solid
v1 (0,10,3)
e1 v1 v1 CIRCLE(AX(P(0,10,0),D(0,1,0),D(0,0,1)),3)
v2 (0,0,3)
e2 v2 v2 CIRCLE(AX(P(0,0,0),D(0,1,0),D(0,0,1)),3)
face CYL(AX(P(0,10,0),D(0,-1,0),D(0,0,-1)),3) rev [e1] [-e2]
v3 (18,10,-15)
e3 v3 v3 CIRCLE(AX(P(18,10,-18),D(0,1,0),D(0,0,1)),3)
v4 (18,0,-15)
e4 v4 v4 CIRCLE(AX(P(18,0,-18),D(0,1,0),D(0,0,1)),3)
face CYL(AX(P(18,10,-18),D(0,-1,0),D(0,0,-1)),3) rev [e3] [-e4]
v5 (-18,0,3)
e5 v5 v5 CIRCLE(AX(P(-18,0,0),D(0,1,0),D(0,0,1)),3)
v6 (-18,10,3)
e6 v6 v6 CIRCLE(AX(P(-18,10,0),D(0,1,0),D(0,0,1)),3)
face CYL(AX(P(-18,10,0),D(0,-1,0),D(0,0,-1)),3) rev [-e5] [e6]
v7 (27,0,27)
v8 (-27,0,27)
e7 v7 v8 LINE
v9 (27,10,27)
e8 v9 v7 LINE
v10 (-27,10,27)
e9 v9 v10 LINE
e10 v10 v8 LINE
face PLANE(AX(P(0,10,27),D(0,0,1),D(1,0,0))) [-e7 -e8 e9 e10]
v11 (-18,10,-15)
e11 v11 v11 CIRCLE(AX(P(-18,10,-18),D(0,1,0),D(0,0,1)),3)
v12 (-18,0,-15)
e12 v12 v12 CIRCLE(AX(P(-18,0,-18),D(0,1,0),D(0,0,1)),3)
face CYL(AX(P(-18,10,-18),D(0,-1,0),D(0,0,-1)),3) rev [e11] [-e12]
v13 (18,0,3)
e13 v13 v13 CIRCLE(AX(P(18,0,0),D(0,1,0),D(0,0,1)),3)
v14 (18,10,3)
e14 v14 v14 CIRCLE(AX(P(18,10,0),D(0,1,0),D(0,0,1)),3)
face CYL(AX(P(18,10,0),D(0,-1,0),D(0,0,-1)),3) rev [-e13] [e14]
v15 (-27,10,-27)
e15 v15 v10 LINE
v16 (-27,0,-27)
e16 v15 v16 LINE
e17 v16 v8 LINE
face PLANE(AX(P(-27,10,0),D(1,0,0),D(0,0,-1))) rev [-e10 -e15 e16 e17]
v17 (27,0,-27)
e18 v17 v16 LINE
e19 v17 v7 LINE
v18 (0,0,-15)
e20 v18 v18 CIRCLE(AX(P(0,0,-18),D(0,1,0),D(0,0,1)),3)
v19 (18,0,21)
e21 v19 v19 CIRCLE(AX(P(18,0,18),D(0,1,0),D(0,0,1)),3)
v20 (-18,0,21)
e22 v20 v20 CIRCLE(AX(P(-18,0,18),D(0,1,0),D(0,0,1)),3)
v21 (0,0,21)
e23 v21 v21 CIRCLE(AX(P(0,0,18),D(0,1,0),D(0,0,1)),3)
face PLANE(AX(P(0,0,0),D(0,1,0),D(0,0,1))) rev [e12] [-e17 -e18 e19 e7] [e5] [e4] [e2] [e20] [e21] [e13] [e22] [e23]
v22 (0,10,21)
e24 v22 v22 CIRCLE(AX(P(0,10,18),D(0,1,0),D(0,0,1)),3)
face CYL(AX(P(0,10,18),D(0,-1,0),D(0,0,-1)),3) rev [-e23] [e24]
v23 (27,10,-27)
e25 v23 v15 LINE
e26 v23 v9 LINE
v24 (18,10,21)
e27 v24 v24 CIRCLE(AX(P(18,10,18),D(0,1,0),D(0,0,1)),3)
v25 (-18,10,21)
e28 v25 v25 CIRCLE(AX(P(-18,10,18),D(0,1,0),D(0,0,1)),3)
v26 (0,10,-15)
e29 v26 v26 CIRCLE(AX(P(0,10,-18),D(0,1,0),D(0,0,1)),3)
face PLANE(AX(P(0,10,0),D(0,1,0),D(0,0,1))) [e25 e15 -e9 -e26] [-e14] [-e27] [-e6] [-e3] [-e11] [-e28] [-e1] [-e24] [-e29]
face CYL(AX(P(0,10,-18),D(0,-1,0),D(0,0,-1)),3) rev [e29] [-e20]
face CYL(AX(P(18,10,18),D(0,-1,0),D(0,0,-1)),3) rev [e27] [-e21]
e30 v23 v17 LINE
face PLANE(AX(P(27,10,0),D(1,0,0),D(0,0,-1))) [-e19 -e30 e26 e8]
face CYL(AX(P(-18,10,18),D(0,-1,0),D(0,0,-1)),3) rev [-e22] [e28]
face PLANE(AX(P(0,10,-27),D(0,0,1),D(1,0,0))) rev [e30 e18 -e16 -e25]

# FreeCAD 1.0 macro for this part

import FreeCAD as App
import Part
import Sketcher
Q = App.Units.Quantity

doc = App.newDocument("Part")
params = doc.addObject("Spreadsheet::Sheet", "Params")
for row, (alias, value) in enumerate([
    ("sketch1_diameter", "6 mm"),
    ("sketch1_width", "54 mm"),
    ("pad1_length", "10 mm"),
], start=1):
    params.set(f"A{row}", alias)
    params.set(f"B{row}", "=" + value)
    params.setAlias(f"B{row}", alias)

body = doc.addObject("PartDesign::Body", "Body")

sketch1 = doc.addObject("Sketcher::SketchObject", "Sketch")
body.addObject(sketch1)
sketch1.AttachmentSupport = (doc.XZ_Plane, [""])
sketch1.MapMode = "FlatFace"
sketch1.addGeometry([
    Part.LineSegment(App.Vector(-27, -27, 0), App.Vector(-27, 27, 0)),
    Part.LineSegment(App.Vector(-27, 27, 0), App.Vector(27, 27, 0)),
    Part.LineSegment(App.Vector(27, 27, 0), App.Vector(27, -27, 0)),
    Part.LineSegment(App.Vector(27, -27, 0), App.Vector(-27, -27, 0)),
    Part.Circle(App.Vector(-18, 18, 0), App.Vector(0, 0, 1), 3),
    Part.Circle(App.Vector(0, 18, 0), App.Vector(0, 0, 1), 3),
    Part.Circle(App.Vector(18, 18, 0), App.Vector(0, 0, 1), 3),
    Part.Circle(App.Vector(-18, 0, 0), App.Vector(0, 0, 1), 3),
    Part.Circle(App.Vector(-18, -18, 0), App.Vector(0, 0, 1), 3),
    Part.Circle(App.Vector(0, 0, 0), App.Vector(0, 0, 1), 3),
    Part.Circle(App.Vector(18, 0, 0), App.Vector(0, 0, 1), 3),
    Part.Circle(App.Vector(0, -18, 0), App.Vector(0, 0, 1), 3),
    Part.Circle(App.Vector(18, -18, 0), App.Vector(0, 0, 1), 3),
], False)
sketch1.addConstraint([
    Sketcher.Constraint("Coincident", 0, 2, 1, 1),
    Sketcher.Constraint("Coincident", 1, 2, 2, 1),
    Sketcher.Constraint("Coincident", 2, 2, 3, 1),
    Sketcher.Constraint("Coincident", 3, 2, 0, 1),
    Sketcher.Constraint("Vertical", 0),
    Sketcher.Constraint("Horizontal", 1),
    Sketcher.Constraint("Vertical", 2),
    Sketcher.Constraint("Horizontal", 3),
    Sketcher.Constraint("Coincident", 9, 3, -1, 1),
    Sketcher.Constraint("Equal", 4, 5),
    Sketcher.Constraint("Equal", 5, 6),
    Sketcher.Constraint("Equal", 6, 7),
    Sketcher.Constraint("Equal", 7, 8),
    Sketcher.Constraint("Equal", 8, 9),
    Sketcher.Constraint("Equal", 9, 10),
    Sketcher.Constraint("Equal", 10, 11),
    Sketcher.Constraint("Equal", 11, 12),
    Sketcher.Constraint("Symmetric", 6, 3, 8, 3, -1, 1),
    Sketcher.Constraint("Symmetric", 7, 3, 10, 3, -1, 1),
    Sketcher.Constraint("Symmetric", 5, 3, 11, 3, -1, 1),
    Sketcher.Constraint("Symmetric", 4, 3, 12, 3, -1, 1),
    Sketcher.Constraint("Symmetric", 0, 2, 2, 2, -1, 1),
    Sketcher.Constraint("Symmetric", 4, 3, 6, 3, -2),
    Sketcher.Constraint("PointOnObject", 5, 3, -2),
    Sketcher.Constraint("PointOnObject", 7, 3, -1),
    Sketcher.Constraint("Horizontal", 4, 3, 5, 3),
    Sketcher.Constraint("Vertical", 4, 3, 7, 3),
    Sketcher.Constraint("Equal", 3, 0),
    Sketcher.Constraint("Diameter", 4, Q("6 mm")),
    Sketcher.Constraint("DistanceX", 1, 1, 1, 2, Q("54 mm")),
    Sketcher.Constraint("DistanceX", 4, 3, -1, 1, Q("18 mm")),
    Sketcher.Constraint("DistanceY", -1, 1, 4, 3, Q("18 mm")),
])
sketch1.setExpression("Constraints[28]", "Params.sketch1_diameter")
sketch1.setExpression("Constraints[29]", "Params.sketch1_width")
pad1 = doc.addObject("PartDesign::Pad", "Pad")
body.addObject(pad1)
pad1.Profile = sketch1
pad1.setExpression("Length", "Params.pad1_length")
pad1.Reversed = True

doc.recompute()
